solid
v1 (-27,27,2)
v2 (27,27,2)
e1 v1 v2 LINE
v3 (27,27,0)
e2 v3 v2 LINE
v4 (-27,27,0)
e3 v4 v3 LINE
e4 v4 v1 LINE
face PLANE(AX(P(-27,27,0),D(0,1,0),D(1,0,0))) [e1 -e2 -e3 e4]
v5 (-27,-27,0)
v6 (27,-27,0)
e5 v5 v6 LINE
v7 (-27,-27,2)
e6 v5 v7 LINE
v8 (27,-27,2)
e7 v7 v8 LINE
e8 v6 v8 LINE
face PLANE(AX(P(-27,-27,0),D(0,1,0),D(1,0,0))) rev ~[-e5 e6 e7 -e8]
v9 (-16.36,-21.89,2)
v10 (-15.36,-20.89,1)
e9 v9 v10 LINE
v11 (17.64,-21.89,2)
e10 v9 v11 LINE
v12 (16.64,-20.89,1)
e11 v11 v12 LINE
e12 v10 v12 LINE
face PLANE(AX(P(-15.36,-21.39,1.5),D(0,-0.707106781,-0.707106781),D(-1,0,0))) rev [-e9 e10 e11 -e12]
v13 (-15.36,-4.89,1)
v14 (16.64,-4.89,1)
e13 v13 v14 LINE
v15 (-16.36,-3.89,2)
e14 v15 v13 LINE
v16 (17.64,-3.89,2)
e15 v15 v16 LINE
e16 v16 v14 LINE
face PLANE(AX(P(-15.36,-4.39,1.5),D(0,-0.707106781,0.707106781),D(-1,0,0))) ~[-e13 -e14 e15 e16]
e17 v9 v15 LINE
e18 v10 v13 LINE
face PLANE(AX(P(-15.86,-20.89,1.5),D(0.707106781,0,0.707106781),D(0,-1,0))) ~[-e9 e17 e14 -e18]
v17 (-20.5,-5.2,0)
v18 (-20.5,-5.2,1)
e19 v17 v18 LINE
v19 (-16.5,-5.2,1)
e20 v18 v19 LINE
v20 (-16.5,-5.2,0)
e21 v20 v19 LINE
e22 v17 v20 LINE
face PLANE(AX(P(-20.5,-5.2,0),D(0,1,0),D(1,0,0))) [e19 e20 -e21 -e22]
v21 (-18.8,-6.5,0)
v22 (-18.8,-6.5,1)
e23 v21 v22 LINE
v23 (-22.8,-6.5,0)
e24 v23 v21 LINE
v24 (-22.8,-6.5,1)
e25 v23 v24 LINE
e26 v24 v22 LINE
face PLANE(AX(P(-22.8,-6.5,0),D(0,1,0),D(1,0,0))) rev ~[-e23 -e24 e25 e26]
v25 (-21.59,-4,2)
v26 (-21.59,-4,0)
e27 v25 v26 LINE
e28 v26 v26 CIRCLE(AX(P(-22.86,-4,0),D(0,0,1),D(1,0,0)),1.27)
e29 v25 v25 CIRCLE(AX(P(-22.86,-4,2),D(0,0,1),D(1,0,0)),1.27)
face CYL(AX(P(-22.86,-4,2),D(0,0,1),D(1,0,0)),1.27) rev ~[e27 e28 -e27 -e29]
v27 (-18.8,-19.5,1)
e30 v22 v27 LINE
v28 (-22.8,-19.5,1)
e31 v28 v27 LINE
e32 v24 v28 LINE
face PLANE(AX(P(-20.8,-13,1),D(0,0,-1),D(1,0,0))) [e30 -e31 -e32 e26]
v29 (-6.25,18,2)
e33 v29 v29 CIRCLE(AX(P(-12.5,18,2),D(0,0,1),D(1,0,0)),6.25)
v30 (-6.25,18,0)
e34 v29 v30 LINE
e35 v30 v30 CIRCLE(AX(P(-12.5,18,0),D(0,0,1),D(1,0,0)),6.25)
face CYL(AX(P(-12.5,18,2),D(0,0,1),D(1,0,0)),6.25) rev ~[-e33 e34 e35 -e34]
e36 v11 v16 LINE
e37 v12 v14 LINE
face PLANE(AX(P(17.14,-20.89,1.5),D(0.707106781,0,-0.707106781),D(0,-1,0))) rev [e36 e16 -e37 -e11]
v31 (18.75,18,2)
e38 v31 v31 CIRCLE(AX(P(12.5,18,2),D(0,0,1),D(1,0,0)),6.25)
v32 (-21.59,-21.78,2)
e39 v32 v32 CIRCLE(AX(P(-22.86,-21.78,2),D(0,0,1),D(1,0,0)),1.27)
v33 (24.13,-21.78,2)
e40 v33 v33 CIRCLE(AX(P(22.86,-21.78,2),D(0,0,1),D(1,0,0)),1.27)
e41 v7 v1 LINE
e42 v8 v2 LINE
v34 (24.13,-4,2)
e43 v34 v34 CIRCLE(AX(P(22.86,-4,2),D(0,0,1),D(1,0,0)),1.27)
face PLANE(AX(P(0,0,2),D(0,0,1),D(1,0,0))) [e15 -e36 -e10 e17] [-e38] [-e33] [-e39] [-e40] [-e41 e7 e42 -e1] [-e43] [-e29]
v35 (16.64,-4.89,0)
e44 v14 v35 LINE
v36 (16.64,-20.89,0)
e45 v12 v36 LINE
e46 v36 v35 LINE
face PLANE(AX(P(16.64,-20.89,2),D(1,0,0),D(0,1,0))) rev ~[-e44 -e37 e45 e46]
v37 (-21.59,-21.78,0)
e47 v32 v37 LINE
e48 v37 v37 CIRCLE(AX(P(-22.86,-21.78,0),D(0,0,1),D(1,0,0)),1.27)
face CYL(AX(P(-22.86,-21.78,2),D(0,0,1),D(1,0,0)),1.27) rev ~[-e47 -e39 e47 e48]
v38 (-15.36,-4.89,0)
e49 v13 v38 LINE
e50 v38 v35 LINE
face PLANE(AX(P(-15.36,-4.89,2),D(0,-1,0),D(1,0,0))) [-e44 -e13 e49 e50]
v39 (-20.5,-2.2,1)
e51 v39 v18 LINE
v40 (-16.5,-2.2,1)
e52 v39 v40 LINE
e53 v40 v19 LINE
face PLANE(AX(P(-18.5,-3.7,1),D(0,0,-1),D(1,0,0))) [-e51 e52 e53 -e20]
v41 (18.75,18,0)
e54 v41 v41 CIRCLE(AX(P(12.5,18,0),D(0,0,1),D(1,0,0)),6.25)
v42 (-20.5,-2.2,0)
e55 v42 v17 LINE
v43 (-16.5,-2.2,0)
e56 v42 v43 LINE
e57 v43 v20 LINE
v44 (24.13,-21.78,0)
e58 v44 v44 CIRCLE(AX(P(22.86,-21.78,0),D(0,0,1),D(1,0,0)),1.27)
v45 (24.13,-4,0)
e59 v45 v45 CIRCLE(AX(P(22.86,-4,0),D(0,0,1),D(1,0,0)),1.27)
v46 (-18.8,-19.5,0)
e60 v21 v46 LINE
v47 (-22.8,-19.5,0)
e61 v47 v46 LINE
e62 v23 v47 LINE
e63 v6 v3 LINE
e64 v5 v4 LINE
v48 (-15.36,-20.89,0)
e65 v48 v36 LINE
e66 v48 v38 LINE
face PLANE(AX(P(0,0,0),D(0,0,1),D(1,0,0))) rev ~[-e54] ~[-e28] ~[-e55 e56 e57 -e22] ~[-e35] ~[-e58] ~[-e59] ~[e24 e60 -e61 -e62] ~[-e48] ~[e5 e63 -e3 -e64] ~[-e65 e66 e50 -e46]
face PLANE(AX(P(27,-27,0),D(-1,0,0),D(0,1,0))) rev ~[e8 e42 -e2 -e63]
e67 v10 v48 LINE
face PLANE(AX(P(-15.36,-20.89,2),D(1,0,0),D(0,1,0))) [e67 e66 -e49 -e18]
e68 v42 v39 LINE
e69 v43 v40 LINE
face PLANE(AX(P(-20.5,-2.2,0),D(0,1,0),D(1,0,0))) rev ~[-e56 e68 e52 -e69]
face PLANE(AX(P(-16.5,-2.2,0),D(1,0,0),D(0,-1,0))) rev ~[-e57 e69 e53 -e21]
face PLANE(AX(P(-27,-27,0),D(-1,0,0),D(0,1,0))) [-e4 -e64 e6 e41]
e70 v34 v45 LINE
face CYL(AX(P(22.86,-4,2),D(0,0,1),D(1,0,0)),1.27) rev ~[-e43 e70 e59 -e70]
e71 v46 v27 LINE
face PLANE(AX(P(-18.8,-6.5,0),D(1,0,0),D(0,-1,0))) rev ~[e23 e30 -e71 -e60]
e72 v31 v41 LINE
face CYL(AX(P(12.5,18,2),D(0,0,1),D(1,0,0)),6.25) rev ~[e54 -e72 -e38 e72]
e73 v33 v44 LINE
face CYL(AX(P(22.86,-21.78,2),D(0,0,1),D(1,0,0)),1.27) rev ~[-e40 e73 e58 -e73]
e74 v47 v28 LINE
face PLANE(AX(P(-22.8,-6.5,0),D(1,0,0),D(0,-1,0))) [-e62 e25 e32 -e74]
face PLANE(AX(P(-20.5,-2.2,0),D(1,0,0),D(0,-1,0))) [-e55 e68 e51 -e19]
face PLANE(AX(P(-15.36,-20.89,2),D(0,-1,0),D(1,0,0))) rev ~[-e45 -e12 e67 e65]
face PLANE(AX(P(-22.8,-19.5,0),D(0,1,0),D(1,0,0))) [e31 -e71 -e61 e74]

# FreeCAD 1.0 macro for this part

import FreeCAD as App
import Part
import Sketcher


def edges_at(feature, points):
    """Names of the edges that pass closest to the given points."""
    edges = feature.Shape.Edges
    near = lambda p: min(range(len(edges)), key=lambda i: edges[i].distToShape(Part.Vertex(*p))[0])
    return sorted({f"Edge{near(p) + 1}" for p in points})

doc = App.newDocument("Part")
body = doc.addObject("PartDesign::Body", "Body")

# Sketch on XY plane
sketch1 = doc.addObject("Sketcher::SketchObject", "Sketch")
body.addObject(sketch1)
sketch1.AttachmentSupport = (doc.XY_Plane, [""])
sketch1.MapMode = "FlatFace"
sketch1.addGeometry(Part.LineSegment(App.Vector(-27, 27, 0), App.Vector(-27, -27, 0)), False)
sketch1.addGeometry(Part.LineSegment(App.Vector(-27, -27, 0), App.Vector(27, -27, 0)), False)
sketch1.addGeometry(Part.LineSegment(App.Vector(27, -27, 0), App.Vector(27, 27, 0)), False)
sketch1.addGeometry(Part.LineSegment(App.Vector(27, 27, 0), App.Vector(-27, 27, 0)), False)
sketch1.addConstraint(Sketcher.Constraint("Coincident", 0, 2, 1, 1))
sketch1.addConstraint(Sketcher.Constraint("Coincident", 1, 2, 2, 1))
sketch1.addConstraint(Sketcher.Constraint("Coincident", 2, 2, 3, 1))
sketch1.addConstraint(Sketcher.Constraint("Coincident", 3, 2, 0, 1))
sketch1.addConstraint(Sketcher.Constraint("Vertical", 0))
sketch1.addConstraint(Sketcher.Constraint("Horizontal", 1))
sketch1.addConstraint(Sketcher.Constraint("Vertical", 2))
sketch1.addConstraint(Sketcher.Constraint("Horizontal", 3))
sketch1.addConstraint(Sketcher.Constraint("Symmetric", 0, 2, 2, 2, -1, 1))
sketch1.addConstraint(Sketcher.Constraint("Equal", 3, 0))
sketch1.addConstraint(Sketcher.Constraint("DistanceX", 1, 1, 1, 2, 54.0))
pad1 = doc.addObject("PartDesign::Pad", "Pad")
body.addObject(pad1)
pad1.Profile = sketch1
pad1.Length = 2

# Sketch on XY plane
sketch2 = doc.addObject("Sketcher::SketchObject", "Sketch001")
body.addObject(sketch2)
sketch2.AttachmentSupport = (doc.XY_Plane, [""])
sketch2.MapMode = "FlatFace"
sketch2.AttachmentOffset = App.Placement(App.Vector(0, 0, 2), App.Rotation())
sketch2.addGeometry(Part.Circle(App.Vector(-22.9, -4, 0), App.Vector(0, 0, 1), 1.3), False)
sketch2.addGeometry(Part.Circle(App.Vector(22.9, -4, 0), App.Vector(0, 0, 1), 1.3), False)
sketch2.addGeometry(Part.Circle(App.Vector(22.9, -21.8, 0), App.Vector(0, 0, 1), 1.3), False)
sketch2.addGeometry(Part.Circle(App.Vector(-22.9, -21.8, 0), App.Vector(0, 0, 1), 1.3), False)
sketch2.addGeometry(Part.Circle(App.Vector(-12.5, 18, 0), App.Vector(0, 0, 1), 6.2), False)
sketch2.addGeometry(Part.Circle(App.Vector(12.5, 18, 0), App.Vector(0, 0, 1), 6.2), False)
sketch2.addGeometry(Part.LineSegment(App.Vector(-15.4, -4.9, 0), App.Vector(-15.4, -20.9, 0)), False)
sketch2.addGeometry(Part.LineSegment(App.Vector(-15.4, -20.9, 0), App.Vector(16.6, -20.9, 0)), False)
sketch2.addGeometry(Part.LineSegment(App.Vector(16.6, -20.9, 0), App.Vector(16.6, -4.9, 0)), False)
sketch2.addGeometry(Part.LineSegment(App.Vector(16.6, -4.9, 0), App.Vector(-15.4, -4.9, 0)), False)
sketch2.addConstraint(Sketcher.Constraint("Coincident", 6, 2, 7, 1))
sketch2.addConstraint(Sketcher.Constraint("Coincident", 7, 2, 8, 1))
sketch2.addConstraint(Sketcher.Constraint("Coincident", 8, 2, 9, 1))
sketch2.addConstraint(Sketcher.Constraint("Coincident", 9, 2, 6, 1))
sketch2.addConstraint(Sketcher.Constraint("Vertical", 6))
sketch2.addConstraint(Sketcher.Constraint("Horizontal", 7))
sketch2.addConstraint(Sketcher.Constraint("Vertical", 8))
sketch2.addConstraint(Sketcher.Constraint("Horizontal", 9))
sketch2.addConstraint(Sketcher.Constraint("Equal", 0, 1))
sketch2.addConstraint(Sketcher.Constraint("Equal", 1, 2))
sketch2.addConstraint(Sketcher.Constraint("Equal", 2, 3))
sketch2.addConstraint(Sketcher.Constraint("Equal", 4, 5))
sketch2.addConstraint(Sketcher.Constraint("Symmetric", 0, 3, 1, 3, -2))
sketch2.addConstraint(Sketcher.Constraint("Symmetric", 2, 3, 3, 3, -2))
sketch2.addConstraint(Sketcher.Constraint("Symmetric", 4, 3, 5, 3, -2))
sketch2.addConstraint(Sketcher.Constraint("Vertical", 1, 3, 2, 3))
sketch2.addConstraint(Sketcher.Constraint("Diameter", 4, 12.5))
sketch2.addConstraint(Sketcher.Constraint("Diameter", 0, 2.54))
sketch2.addConstraint(Sketcher.Constraint("DistanceX", 7, 1, 7, 2, 32.0))
sketch2.addConstraint(Sketcher.Constraint("DistanceY", 6, 2, 6, 1, 16.0))
sketch2.addConstraint(Sketcher.Constraint("DistanceY", 0, 3, -1, 1, 4.0))
sketch2.addConstraint(Sketcher.Constraint("DistanceY", -1, 1, 4, 3, 18.0))
sketch2.addConstraint(Sketcher.Constraint("DistanceX", 4, 3, 5, 3, 25.0))
sketch2.addConstraint(Sketcher.Constraint("DistanceX", 3, 3, 6, 2, 7.5))
sketch2.addConstraint(Sketcher.Constraint("DistanceX", 0, 3, -1, 1, 22.86))
sketch2.addConstraint(Sketcher.Constraint("DistanceY", 2, 3, -1, 1, 21.78))
sketch2.addConstraint(Sketcher.Constraint("DistanceY", 6, 2, -1, 1, 20.89))
pocket1 = doc.addObject("PartDesign::Pocket", "Pocket")
body.addObject(pocket1)
pocket1.Profile = sketch2
pocket1.Length = 2
doc.recompute()

chamfer = doc.addObject("PartDesign::Chamfer", "Chamfer")
body.addObject(chamfer)
chamfer.Base = (pocket1, edges_at(pocket1, [
    (0.64, -20.89, 2),
    (-15.36, -12.89, 2),
    (0.64, -4.89, 2),
    (16.64, -12.89, 2),
]))
chamfer.Size = 1

# Sketch on XY plane
sketch3 = doc.addObject("Sketcher::SketchObject", "Sketch002")
body.addObject(sketch3)
sketch3.AttachmentSupport = (doc.XY_Plane, [""])
sketch3.MapMode = "FlatFace"
sketch3.addGeometry(Part.LineSegment(App.Vector(-22.8, -19.5, 0), App.Vector(-22.8, -6.5, 0)), False)
sketch3.addGeometry(Part.LineSegment(App.Vector(-22.8, -6.5, 0), App.Vector(-18.8, -6.5, 0)), False)
sketch3.addGeometry(Part.LineSegment(App.Vector(-18.8, -6.5, 0), App.Vector(-18.8, -19.5, 0)), False)
sketch3.addGeometry(Part.LineSegment(App.Vector(-18.8, -19.5, 0), App.Vector(-22.8, -19.5, 0)), False)
sketch3.addGeometry(Part.LineSegment(App.Vector(-20.5, -5.2, 0), App.Vector(-20.5, -2.2, 0)), False)
sketch3.addGeometry(Part.LineSegment(App.Vector(-20.5, -2.2, 0), App.Vector(-16.5, -2.2, 0)), False)
sketch3.addGeometry(Part.LineSegment(App.Vector(-16.5, -2.2, 0), App.Vector(-16.5, -5.2, 0)), False)
sketch3.addGeometry(Part.LineSegment(App.Vector(-16.5, -5.2, 0), App.Vector(-20.5, -5.2, 0)), False)
sketch3.addConstraint(Sketcher.Constraint("Coincident", 0, 2, 1, 1))
sketch3.addConstraint(Sketcher.Constraint("Coincident", 1, 2, 2, 1))
sketch3.addConstraint(Sketcher.Constraint("Coincident", 2, 2, 3, 1))
sketch3.addConstraint(Sketcher.Constraint("Coincident", 3, 2, 0, 1))
sketch3.addConstraint(Sketcher.Constraint("Coincident", 4, 2, 5, 1))
sketch3.addConstraint(Sketcher.Constraint("Coincident", 5, 2, 6, 1))
sketch3.addConstraint(Sketcher.Constraint("Coincident", 6, 2, 7, 1))
sketch3.addConstraint(Sketcher.Constraint("Coincident", 7, 2, 4, 1))
sketch3.addConstraint(Sketcher.Constraint("Vertical", 0))
sketch3.addConstraint(Sketcher.Constraint("Horizontal", 1))
sketch3.addConstraint(Sketcher.Constraint("Vertical", 2))
sketch3.addConstraint(Sketcher.Constraint("Horizontal", 3))
sketch3.addConstraint(Sketcher.Constraint("Vertical", 4))
sketch3.addConstraint(Sketcher.Constraint("Horizontal", 5))
sketch3.addConstraint(Sketcher.Constraint("Vertical", 6))
sketch3.addConstraint(Sketcher.Constraint("Horizontal", 7))
sketch3.addConstraint(Sketcher.Constraint("Equal", 3, 5))
sketch3.addConstraint(Sketcher.Constraint("DistanceX", 1, 1, 1, 2, 4.0))
sketch3.addConstraint(Sketcher.Constraint("DistanceY", 0, 1, 0, 2, 13.0))
sketch3.addConstraint(Sketcher.Constraint("DistanceY", 4, 1, 4, 2, 3.0))
sketch3.addConstraint(Sketcher.Constraint("DistanceX", 0, 2, -1, 1, 22.8))
sketch3.addConstraint(Sketcher.Constraint("DistanceY", 0, 2, -1, 1, 6.5))
sketch3.addConstraint(Sketcher.Constraint("DistanceX", 4, 2, -1, 1, 20.5))
sketch3.addConstraint(Sketcher.Constraint("DistanceY", 4, 2, -1, 1, 2.2))
pocket2 = doc.addObject("PartDesign::Pocket", "Pocket001")
body.addObject(pocket2)
pocket2.Profile = sketch3
pocket2.Length = 1
pocket2.Reversed = True

doc.recompute()
